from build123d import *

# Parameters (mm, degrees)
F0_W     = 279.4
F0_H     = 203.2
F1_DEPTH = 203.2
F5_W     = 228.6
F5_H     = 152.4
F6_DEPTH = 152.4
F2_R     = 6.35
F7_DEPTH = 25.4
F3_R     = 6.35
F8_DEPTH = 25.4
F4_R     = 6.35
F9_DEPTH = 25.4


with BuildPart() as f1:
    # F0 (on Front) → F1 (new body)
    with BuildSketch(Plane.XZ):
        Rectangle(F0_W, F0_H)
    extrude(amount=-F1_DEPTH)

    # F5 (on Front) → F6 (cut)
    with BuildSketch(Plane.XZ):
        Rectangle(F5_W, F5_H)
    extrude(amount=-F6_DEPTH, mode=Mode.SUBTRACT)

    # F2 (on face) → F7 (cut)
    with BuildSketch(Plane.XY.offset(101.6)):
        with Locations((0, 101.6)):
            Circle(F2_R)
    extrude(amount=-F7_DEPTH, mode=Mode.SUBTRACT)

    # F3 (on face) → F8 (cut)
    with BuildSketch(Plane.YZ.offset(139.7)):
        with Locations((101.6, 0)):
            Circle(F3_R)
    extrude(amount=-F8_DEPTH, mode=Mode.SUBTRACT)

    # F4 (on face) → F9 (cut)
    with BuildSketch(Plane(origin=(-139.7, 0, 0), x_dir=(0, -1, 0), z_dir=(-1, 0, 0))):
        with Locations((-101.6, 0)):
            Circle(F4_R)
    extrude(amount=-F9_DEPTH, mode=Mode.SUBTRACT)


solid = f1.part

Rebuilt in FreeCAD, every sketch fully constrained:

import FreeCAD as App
import Part
import Sketcher

V = App.Vector
Q = App.Units.Quantity


def add_polygon(sketch, points):
    """Adds a closed chain of lines whose ends are joined by coincident constraints."""
    first, n = sketch.GeometryCount, len(points)
    for a, b in zip(points, points[1:] + points[:1]):
        sketch.addGeometry(Part.LineSegment(App.Vector(*a, 0), App.Vector(*b, 0)), False)
    for i in range(n):
        sketch.addConstraint(Sketcher.Constraint("Coincident", first + i, 2, first + (i + 1) % n, 1))

doc = App.newDocument("Part")
body = doc.addObject("PartDesign::Body", "Body")

sketch1 = body.newObject("Sketcher::SketchObject", "Sketch")
sketch1.AttachmentSupport = (doc.getObject("XZ_Plane"), [""])
sketch1.MapMode = "FlatFace"
add_polygon(sketch1, [(-140, 102), (-140, -102), (140, -102), (140, 102)])
sketch1.addConstraint([
    Sketcher.Constraint("Vertical", 0),
    Sketcher.Constraint("Horizontal", 1),
    Sketcher.Constraint("Vertical", 2),
    Sketcher.Constraint("Horizontal", 3),
    Sketcher.Constraint("Symmetric", 0, 2, 2, 2, -1, 1),
    Sketcher.Constraint("DistanceX", 1, 1, 1, 2, Q("11 in")),
    Sketcher.Constraint("DistanceY", 0, 2, 0, 1, Q("8 in")),
])
pad1 = body.newObject("PartDesign::Pad", "Pad")
pad1.Profile = sketch1
pad1.Length = Q("8 in")
pad1.Reversed = True

sketch2 = body.newObject("Sketcher::SketchObject", "Sketch001")
sketch2.AttachmentSupport = (doc.getObject("XZ_Plane"), [""])
sketch2.MapMode = "FlatFace"
add_polygon(sketch2, [(-114, 76), (-114, -76), (114, -76), (114, 76)])
sketch2.addConstraint([
    Sketcher.Constraint("Vertical", 0),
    Sketcher.Constraint("Horizontal", 1),
    Sketcher.Constraint("Vertical", 2),
    Sketcher.Constraint("Horizontal", 3),
    Sketcher.Constraint("Symmetric", 0, 2, 2, 2, -1, 1),
    Sketcher.Constraint("DistanceX", 1, 1, 1, 2, Q("9 in")),
    Sketcher.Constraint("DistanceY", 0, 2, 0, 1, Q("6 in")),
])
pocket1 = body.newObject("PartDesign::Pocket", "Pocket")
pocket1.Profile = sketch2
pocket1.Length = Q("6 in")

sketch3 = body.newObject("Sketcher::SketchObject", "Sketch002")
sketch3.AttachmentSupport = (doc.getObject("XY_Plane"), [""])
sketch3.MapMode = "FlatFace"
sketch3.AttachmentOffset = App.Placement(V(0, 0, 4 * 25.4), App.Rotation())
sketch3.addGeometry(Part.Circle(V(0, 102, 0), V(0, 0, 1), 6), False)
sketch3.addConstraint([
    Sketcher.Constraint("PointOnObject", 0, 3, -2),
    Sketcher.Constraint("Diameter", 0, Q("0.5 in")),
    Sketcher.Constraint("DistanceY", -1, 1, 0, 3, Q("4 in")),
])
pocket2 = body.newObject("PartDesign::Pocket", "Pocket001")
pocket2.Profile = sketch3
pocket2.Length = Q("1 in")

sketch4 = body.newObject("Sketcher::SketchObject", "Sketch003")
sketch4.AttachmentSupport = (doc.getObject("YZ_Plane"), [""])
sketch4.MapMode = "FlatFace"
sketch4.AttachmentOffset = App.Placement(V(0, 0, 5.5 * 25.4), App.Rotation())
sketch4.addGeometry(Part.Circle(V(102, 0, 0), V(0, 0, 1), 6), False)
sketch4.addConstraint([
    Sketcher.Constraint("PointOnObject", 0, 3, -1),
    Sketcher.Constraint("Diameter", 0, Q("0.5 in")),
    Sketcher.Constraint("DistanceX", -1, 1, 0, 3, Q("4 in")),
])
pocket3 = body.newObject("PartDesign::Pocket", "Pocket002")
pocket3.Profile = sketch4
pocket3.Length = Q("1 in")

sketch5 = body.newObject("Sketcher::SketchObject", "Sketch004")
sketch5.AttachmentSupport = (doc.getObject("YZ_Plane"), [""])
sketch5.MapMode = "FlatFace"
sketch5.AttachmentOffset = App.Placement(V(0, 0, -5.5 * 25.4), App.Rotation())
sketch5.addGeometry(Part.Circle(V(102, 0, 0), V(0, 0, 1), 6), False)
sketch5.addConstraint([
    Sketcher.Constraint("PointOnObject", 0, 3, -1),
    Sketcher.Constraint("Diameter", 0, Q("0.5 in")),
    Sketcher.Constraint("DistanceX", -1, 1, 0, 3, Q("4 in")),
])
pocket4 = body.newObject("PartDesign::Pocket", "Pocket003")
pocket4.Profile = sketch5
pocket4.Length = Q("1 in")
pocket4.Reversed = True

doc.recompute()
